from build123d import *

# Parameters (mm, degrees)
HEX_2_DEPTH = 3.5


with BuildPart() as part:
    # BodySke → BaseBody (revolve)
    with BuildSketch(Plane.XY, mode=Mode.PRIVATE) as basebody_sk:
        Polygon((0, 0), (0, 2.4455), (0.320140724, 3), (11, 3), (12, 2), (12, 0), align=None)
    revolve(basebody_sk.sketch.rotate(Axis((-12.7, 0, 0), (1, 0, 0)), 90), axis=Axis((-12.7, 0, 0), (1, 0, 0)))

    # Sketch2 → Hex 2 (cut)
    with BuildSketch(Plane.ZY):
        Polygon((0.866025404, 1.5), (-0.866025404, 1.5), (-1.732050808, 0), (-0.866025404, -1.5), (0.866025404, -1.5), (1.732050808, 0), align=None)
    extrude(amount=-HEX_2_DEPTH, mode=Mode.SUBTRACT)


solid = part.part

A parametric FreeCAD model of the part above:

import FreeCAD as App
import Part
import Sketcher
from FreeCAD import Vector
Q = App.Units.Quantity


def add_polygon(sketch, points):
    """Adds a closed chain of lines whose ends are joined by coincident constraints."""
    first, n = sketch.GeometryCount, len(points)
    for a, b in zip(points, points[1:] + points[:1]):
        sketch.addGeometry(Part.LineSegment(App.Vector(*a, 0), App.Vector(*b, 0)), False)
    for i in range(n):
        sketch.addConstraint(Sketcher.Constraint("Coincident", first + i, 2, first + (i + 1) % n, 1))

doc = App.newDocument("Part")
body = doc.addObject("PartDesign::Body", "Body")

sketch1 = body.newObject("Sketcher::SketchObject", "Sketch")
sketch1.AttachmentSupport = (doc.getObject("XY_Plane"), [""])
sketch1.MapMode = "FlatFace"
add_polygon(sketch1, [(0, 2.4455), (0, 0), (12, 0), (12, 2), (11, 3), (0.320141, 3)])
sketch1.addConstraint(Sketcher.Constraint("Vertical", 0))
sketch1.addConstraint(Sketcher.Constraint("Horizontal", 1))
sketch1.addConstraint(Sketcher.Constraint("Vertical", 2))
sketch1.addConstraint(Sketcher.Constraint("Horizontal", 4))
sketch1.addConstraint(Sketcher.Constraint("Coincident", 0, 2, -1, 1))
sketch1.addConstraint(Sketcher.Constraint("DistanceX", 1, 1, 1, 2, 12.0))
sketch1.addConstraint(Sketcher.Constraint("DistanceY", 2, 1, 2, 2, 2.0))
sketch1.addConstraint(Sketcher.Constraint("Angle", 3, Q("135 deg")))
sketch1.addConstraint(Sketcher.Constraint("Angle", 5, Q("-120 deg")))
sketch1.addConstraint(Sketcher.Constraint("DistanceX", -1, 1, 3, 2, 11.0))
sketch1.addConstraint(Sketcher.Constraint("DistanceY", 0, 2, 0, 1, 2.4455))
revolution = body.newObject("PartDesign::Revolution", "Revolution")
revolution.Profile = sketch1
revolution.ReferenceAxis = (sketch1, ["H_Axis"])
revolution.Angle = 360

sketch2 = body.newObject("Sketcher::SketchObject", "Sketch001")
sketch2.AttachmentSupport = (doc.getObject("YZ_Plane"), [""])
sketch2.MapMode = "FlatFace"
add_polygon(sketch2, [(1.5, 0.866025), (1.5, -0.866025), (0, -1.732051), (-1.5, -0.866025), (-1.5, 0.866025), (0, 1.732051)])
sketch2.addConstraint(Sketcher.Constraint("Vertical", 0))
sketch2.addConstraint(Sketcher.Constraint("Vertical", 3))
sketch2.addConstraint(Sketcher.Constraint("Symmetric", 0, 2, 3, 2, -1, 1))
sketch2.addConstraint(Sketcher.Constraint("Symmetric", 1, 2, 4, 2, -1, 1))
sketch2.addConstraint(Sketcher.Constraint("PointOnObject", 1, 2, -2))
sketch2.addConstraint(Sketcher.Constraint("Parallel", 2, 5))
sketch2.addConstraint(Sketcher.Constraint("Horizontal", 0, 2, 2, 2))
sketch2.addConstraint(Sketcher.Constraint("Angle", 1, Q("-150 deg")))
sketch2.addConstraint(Sketcher.Constraint("DistanceX", 2, 2, 0, 2, 3.0))
sketch2.addConstraint(Sketcher.Constraint("DistanceY", 0, 2, 0, 1, 1.732051))
pocket1 = body.newObject("PartDesign::Pocket", "Pocket")
pocket1.Profile = sketch2
pocket1.Length = 3.5
pocket1.Reversed = True

doc.recompute()
